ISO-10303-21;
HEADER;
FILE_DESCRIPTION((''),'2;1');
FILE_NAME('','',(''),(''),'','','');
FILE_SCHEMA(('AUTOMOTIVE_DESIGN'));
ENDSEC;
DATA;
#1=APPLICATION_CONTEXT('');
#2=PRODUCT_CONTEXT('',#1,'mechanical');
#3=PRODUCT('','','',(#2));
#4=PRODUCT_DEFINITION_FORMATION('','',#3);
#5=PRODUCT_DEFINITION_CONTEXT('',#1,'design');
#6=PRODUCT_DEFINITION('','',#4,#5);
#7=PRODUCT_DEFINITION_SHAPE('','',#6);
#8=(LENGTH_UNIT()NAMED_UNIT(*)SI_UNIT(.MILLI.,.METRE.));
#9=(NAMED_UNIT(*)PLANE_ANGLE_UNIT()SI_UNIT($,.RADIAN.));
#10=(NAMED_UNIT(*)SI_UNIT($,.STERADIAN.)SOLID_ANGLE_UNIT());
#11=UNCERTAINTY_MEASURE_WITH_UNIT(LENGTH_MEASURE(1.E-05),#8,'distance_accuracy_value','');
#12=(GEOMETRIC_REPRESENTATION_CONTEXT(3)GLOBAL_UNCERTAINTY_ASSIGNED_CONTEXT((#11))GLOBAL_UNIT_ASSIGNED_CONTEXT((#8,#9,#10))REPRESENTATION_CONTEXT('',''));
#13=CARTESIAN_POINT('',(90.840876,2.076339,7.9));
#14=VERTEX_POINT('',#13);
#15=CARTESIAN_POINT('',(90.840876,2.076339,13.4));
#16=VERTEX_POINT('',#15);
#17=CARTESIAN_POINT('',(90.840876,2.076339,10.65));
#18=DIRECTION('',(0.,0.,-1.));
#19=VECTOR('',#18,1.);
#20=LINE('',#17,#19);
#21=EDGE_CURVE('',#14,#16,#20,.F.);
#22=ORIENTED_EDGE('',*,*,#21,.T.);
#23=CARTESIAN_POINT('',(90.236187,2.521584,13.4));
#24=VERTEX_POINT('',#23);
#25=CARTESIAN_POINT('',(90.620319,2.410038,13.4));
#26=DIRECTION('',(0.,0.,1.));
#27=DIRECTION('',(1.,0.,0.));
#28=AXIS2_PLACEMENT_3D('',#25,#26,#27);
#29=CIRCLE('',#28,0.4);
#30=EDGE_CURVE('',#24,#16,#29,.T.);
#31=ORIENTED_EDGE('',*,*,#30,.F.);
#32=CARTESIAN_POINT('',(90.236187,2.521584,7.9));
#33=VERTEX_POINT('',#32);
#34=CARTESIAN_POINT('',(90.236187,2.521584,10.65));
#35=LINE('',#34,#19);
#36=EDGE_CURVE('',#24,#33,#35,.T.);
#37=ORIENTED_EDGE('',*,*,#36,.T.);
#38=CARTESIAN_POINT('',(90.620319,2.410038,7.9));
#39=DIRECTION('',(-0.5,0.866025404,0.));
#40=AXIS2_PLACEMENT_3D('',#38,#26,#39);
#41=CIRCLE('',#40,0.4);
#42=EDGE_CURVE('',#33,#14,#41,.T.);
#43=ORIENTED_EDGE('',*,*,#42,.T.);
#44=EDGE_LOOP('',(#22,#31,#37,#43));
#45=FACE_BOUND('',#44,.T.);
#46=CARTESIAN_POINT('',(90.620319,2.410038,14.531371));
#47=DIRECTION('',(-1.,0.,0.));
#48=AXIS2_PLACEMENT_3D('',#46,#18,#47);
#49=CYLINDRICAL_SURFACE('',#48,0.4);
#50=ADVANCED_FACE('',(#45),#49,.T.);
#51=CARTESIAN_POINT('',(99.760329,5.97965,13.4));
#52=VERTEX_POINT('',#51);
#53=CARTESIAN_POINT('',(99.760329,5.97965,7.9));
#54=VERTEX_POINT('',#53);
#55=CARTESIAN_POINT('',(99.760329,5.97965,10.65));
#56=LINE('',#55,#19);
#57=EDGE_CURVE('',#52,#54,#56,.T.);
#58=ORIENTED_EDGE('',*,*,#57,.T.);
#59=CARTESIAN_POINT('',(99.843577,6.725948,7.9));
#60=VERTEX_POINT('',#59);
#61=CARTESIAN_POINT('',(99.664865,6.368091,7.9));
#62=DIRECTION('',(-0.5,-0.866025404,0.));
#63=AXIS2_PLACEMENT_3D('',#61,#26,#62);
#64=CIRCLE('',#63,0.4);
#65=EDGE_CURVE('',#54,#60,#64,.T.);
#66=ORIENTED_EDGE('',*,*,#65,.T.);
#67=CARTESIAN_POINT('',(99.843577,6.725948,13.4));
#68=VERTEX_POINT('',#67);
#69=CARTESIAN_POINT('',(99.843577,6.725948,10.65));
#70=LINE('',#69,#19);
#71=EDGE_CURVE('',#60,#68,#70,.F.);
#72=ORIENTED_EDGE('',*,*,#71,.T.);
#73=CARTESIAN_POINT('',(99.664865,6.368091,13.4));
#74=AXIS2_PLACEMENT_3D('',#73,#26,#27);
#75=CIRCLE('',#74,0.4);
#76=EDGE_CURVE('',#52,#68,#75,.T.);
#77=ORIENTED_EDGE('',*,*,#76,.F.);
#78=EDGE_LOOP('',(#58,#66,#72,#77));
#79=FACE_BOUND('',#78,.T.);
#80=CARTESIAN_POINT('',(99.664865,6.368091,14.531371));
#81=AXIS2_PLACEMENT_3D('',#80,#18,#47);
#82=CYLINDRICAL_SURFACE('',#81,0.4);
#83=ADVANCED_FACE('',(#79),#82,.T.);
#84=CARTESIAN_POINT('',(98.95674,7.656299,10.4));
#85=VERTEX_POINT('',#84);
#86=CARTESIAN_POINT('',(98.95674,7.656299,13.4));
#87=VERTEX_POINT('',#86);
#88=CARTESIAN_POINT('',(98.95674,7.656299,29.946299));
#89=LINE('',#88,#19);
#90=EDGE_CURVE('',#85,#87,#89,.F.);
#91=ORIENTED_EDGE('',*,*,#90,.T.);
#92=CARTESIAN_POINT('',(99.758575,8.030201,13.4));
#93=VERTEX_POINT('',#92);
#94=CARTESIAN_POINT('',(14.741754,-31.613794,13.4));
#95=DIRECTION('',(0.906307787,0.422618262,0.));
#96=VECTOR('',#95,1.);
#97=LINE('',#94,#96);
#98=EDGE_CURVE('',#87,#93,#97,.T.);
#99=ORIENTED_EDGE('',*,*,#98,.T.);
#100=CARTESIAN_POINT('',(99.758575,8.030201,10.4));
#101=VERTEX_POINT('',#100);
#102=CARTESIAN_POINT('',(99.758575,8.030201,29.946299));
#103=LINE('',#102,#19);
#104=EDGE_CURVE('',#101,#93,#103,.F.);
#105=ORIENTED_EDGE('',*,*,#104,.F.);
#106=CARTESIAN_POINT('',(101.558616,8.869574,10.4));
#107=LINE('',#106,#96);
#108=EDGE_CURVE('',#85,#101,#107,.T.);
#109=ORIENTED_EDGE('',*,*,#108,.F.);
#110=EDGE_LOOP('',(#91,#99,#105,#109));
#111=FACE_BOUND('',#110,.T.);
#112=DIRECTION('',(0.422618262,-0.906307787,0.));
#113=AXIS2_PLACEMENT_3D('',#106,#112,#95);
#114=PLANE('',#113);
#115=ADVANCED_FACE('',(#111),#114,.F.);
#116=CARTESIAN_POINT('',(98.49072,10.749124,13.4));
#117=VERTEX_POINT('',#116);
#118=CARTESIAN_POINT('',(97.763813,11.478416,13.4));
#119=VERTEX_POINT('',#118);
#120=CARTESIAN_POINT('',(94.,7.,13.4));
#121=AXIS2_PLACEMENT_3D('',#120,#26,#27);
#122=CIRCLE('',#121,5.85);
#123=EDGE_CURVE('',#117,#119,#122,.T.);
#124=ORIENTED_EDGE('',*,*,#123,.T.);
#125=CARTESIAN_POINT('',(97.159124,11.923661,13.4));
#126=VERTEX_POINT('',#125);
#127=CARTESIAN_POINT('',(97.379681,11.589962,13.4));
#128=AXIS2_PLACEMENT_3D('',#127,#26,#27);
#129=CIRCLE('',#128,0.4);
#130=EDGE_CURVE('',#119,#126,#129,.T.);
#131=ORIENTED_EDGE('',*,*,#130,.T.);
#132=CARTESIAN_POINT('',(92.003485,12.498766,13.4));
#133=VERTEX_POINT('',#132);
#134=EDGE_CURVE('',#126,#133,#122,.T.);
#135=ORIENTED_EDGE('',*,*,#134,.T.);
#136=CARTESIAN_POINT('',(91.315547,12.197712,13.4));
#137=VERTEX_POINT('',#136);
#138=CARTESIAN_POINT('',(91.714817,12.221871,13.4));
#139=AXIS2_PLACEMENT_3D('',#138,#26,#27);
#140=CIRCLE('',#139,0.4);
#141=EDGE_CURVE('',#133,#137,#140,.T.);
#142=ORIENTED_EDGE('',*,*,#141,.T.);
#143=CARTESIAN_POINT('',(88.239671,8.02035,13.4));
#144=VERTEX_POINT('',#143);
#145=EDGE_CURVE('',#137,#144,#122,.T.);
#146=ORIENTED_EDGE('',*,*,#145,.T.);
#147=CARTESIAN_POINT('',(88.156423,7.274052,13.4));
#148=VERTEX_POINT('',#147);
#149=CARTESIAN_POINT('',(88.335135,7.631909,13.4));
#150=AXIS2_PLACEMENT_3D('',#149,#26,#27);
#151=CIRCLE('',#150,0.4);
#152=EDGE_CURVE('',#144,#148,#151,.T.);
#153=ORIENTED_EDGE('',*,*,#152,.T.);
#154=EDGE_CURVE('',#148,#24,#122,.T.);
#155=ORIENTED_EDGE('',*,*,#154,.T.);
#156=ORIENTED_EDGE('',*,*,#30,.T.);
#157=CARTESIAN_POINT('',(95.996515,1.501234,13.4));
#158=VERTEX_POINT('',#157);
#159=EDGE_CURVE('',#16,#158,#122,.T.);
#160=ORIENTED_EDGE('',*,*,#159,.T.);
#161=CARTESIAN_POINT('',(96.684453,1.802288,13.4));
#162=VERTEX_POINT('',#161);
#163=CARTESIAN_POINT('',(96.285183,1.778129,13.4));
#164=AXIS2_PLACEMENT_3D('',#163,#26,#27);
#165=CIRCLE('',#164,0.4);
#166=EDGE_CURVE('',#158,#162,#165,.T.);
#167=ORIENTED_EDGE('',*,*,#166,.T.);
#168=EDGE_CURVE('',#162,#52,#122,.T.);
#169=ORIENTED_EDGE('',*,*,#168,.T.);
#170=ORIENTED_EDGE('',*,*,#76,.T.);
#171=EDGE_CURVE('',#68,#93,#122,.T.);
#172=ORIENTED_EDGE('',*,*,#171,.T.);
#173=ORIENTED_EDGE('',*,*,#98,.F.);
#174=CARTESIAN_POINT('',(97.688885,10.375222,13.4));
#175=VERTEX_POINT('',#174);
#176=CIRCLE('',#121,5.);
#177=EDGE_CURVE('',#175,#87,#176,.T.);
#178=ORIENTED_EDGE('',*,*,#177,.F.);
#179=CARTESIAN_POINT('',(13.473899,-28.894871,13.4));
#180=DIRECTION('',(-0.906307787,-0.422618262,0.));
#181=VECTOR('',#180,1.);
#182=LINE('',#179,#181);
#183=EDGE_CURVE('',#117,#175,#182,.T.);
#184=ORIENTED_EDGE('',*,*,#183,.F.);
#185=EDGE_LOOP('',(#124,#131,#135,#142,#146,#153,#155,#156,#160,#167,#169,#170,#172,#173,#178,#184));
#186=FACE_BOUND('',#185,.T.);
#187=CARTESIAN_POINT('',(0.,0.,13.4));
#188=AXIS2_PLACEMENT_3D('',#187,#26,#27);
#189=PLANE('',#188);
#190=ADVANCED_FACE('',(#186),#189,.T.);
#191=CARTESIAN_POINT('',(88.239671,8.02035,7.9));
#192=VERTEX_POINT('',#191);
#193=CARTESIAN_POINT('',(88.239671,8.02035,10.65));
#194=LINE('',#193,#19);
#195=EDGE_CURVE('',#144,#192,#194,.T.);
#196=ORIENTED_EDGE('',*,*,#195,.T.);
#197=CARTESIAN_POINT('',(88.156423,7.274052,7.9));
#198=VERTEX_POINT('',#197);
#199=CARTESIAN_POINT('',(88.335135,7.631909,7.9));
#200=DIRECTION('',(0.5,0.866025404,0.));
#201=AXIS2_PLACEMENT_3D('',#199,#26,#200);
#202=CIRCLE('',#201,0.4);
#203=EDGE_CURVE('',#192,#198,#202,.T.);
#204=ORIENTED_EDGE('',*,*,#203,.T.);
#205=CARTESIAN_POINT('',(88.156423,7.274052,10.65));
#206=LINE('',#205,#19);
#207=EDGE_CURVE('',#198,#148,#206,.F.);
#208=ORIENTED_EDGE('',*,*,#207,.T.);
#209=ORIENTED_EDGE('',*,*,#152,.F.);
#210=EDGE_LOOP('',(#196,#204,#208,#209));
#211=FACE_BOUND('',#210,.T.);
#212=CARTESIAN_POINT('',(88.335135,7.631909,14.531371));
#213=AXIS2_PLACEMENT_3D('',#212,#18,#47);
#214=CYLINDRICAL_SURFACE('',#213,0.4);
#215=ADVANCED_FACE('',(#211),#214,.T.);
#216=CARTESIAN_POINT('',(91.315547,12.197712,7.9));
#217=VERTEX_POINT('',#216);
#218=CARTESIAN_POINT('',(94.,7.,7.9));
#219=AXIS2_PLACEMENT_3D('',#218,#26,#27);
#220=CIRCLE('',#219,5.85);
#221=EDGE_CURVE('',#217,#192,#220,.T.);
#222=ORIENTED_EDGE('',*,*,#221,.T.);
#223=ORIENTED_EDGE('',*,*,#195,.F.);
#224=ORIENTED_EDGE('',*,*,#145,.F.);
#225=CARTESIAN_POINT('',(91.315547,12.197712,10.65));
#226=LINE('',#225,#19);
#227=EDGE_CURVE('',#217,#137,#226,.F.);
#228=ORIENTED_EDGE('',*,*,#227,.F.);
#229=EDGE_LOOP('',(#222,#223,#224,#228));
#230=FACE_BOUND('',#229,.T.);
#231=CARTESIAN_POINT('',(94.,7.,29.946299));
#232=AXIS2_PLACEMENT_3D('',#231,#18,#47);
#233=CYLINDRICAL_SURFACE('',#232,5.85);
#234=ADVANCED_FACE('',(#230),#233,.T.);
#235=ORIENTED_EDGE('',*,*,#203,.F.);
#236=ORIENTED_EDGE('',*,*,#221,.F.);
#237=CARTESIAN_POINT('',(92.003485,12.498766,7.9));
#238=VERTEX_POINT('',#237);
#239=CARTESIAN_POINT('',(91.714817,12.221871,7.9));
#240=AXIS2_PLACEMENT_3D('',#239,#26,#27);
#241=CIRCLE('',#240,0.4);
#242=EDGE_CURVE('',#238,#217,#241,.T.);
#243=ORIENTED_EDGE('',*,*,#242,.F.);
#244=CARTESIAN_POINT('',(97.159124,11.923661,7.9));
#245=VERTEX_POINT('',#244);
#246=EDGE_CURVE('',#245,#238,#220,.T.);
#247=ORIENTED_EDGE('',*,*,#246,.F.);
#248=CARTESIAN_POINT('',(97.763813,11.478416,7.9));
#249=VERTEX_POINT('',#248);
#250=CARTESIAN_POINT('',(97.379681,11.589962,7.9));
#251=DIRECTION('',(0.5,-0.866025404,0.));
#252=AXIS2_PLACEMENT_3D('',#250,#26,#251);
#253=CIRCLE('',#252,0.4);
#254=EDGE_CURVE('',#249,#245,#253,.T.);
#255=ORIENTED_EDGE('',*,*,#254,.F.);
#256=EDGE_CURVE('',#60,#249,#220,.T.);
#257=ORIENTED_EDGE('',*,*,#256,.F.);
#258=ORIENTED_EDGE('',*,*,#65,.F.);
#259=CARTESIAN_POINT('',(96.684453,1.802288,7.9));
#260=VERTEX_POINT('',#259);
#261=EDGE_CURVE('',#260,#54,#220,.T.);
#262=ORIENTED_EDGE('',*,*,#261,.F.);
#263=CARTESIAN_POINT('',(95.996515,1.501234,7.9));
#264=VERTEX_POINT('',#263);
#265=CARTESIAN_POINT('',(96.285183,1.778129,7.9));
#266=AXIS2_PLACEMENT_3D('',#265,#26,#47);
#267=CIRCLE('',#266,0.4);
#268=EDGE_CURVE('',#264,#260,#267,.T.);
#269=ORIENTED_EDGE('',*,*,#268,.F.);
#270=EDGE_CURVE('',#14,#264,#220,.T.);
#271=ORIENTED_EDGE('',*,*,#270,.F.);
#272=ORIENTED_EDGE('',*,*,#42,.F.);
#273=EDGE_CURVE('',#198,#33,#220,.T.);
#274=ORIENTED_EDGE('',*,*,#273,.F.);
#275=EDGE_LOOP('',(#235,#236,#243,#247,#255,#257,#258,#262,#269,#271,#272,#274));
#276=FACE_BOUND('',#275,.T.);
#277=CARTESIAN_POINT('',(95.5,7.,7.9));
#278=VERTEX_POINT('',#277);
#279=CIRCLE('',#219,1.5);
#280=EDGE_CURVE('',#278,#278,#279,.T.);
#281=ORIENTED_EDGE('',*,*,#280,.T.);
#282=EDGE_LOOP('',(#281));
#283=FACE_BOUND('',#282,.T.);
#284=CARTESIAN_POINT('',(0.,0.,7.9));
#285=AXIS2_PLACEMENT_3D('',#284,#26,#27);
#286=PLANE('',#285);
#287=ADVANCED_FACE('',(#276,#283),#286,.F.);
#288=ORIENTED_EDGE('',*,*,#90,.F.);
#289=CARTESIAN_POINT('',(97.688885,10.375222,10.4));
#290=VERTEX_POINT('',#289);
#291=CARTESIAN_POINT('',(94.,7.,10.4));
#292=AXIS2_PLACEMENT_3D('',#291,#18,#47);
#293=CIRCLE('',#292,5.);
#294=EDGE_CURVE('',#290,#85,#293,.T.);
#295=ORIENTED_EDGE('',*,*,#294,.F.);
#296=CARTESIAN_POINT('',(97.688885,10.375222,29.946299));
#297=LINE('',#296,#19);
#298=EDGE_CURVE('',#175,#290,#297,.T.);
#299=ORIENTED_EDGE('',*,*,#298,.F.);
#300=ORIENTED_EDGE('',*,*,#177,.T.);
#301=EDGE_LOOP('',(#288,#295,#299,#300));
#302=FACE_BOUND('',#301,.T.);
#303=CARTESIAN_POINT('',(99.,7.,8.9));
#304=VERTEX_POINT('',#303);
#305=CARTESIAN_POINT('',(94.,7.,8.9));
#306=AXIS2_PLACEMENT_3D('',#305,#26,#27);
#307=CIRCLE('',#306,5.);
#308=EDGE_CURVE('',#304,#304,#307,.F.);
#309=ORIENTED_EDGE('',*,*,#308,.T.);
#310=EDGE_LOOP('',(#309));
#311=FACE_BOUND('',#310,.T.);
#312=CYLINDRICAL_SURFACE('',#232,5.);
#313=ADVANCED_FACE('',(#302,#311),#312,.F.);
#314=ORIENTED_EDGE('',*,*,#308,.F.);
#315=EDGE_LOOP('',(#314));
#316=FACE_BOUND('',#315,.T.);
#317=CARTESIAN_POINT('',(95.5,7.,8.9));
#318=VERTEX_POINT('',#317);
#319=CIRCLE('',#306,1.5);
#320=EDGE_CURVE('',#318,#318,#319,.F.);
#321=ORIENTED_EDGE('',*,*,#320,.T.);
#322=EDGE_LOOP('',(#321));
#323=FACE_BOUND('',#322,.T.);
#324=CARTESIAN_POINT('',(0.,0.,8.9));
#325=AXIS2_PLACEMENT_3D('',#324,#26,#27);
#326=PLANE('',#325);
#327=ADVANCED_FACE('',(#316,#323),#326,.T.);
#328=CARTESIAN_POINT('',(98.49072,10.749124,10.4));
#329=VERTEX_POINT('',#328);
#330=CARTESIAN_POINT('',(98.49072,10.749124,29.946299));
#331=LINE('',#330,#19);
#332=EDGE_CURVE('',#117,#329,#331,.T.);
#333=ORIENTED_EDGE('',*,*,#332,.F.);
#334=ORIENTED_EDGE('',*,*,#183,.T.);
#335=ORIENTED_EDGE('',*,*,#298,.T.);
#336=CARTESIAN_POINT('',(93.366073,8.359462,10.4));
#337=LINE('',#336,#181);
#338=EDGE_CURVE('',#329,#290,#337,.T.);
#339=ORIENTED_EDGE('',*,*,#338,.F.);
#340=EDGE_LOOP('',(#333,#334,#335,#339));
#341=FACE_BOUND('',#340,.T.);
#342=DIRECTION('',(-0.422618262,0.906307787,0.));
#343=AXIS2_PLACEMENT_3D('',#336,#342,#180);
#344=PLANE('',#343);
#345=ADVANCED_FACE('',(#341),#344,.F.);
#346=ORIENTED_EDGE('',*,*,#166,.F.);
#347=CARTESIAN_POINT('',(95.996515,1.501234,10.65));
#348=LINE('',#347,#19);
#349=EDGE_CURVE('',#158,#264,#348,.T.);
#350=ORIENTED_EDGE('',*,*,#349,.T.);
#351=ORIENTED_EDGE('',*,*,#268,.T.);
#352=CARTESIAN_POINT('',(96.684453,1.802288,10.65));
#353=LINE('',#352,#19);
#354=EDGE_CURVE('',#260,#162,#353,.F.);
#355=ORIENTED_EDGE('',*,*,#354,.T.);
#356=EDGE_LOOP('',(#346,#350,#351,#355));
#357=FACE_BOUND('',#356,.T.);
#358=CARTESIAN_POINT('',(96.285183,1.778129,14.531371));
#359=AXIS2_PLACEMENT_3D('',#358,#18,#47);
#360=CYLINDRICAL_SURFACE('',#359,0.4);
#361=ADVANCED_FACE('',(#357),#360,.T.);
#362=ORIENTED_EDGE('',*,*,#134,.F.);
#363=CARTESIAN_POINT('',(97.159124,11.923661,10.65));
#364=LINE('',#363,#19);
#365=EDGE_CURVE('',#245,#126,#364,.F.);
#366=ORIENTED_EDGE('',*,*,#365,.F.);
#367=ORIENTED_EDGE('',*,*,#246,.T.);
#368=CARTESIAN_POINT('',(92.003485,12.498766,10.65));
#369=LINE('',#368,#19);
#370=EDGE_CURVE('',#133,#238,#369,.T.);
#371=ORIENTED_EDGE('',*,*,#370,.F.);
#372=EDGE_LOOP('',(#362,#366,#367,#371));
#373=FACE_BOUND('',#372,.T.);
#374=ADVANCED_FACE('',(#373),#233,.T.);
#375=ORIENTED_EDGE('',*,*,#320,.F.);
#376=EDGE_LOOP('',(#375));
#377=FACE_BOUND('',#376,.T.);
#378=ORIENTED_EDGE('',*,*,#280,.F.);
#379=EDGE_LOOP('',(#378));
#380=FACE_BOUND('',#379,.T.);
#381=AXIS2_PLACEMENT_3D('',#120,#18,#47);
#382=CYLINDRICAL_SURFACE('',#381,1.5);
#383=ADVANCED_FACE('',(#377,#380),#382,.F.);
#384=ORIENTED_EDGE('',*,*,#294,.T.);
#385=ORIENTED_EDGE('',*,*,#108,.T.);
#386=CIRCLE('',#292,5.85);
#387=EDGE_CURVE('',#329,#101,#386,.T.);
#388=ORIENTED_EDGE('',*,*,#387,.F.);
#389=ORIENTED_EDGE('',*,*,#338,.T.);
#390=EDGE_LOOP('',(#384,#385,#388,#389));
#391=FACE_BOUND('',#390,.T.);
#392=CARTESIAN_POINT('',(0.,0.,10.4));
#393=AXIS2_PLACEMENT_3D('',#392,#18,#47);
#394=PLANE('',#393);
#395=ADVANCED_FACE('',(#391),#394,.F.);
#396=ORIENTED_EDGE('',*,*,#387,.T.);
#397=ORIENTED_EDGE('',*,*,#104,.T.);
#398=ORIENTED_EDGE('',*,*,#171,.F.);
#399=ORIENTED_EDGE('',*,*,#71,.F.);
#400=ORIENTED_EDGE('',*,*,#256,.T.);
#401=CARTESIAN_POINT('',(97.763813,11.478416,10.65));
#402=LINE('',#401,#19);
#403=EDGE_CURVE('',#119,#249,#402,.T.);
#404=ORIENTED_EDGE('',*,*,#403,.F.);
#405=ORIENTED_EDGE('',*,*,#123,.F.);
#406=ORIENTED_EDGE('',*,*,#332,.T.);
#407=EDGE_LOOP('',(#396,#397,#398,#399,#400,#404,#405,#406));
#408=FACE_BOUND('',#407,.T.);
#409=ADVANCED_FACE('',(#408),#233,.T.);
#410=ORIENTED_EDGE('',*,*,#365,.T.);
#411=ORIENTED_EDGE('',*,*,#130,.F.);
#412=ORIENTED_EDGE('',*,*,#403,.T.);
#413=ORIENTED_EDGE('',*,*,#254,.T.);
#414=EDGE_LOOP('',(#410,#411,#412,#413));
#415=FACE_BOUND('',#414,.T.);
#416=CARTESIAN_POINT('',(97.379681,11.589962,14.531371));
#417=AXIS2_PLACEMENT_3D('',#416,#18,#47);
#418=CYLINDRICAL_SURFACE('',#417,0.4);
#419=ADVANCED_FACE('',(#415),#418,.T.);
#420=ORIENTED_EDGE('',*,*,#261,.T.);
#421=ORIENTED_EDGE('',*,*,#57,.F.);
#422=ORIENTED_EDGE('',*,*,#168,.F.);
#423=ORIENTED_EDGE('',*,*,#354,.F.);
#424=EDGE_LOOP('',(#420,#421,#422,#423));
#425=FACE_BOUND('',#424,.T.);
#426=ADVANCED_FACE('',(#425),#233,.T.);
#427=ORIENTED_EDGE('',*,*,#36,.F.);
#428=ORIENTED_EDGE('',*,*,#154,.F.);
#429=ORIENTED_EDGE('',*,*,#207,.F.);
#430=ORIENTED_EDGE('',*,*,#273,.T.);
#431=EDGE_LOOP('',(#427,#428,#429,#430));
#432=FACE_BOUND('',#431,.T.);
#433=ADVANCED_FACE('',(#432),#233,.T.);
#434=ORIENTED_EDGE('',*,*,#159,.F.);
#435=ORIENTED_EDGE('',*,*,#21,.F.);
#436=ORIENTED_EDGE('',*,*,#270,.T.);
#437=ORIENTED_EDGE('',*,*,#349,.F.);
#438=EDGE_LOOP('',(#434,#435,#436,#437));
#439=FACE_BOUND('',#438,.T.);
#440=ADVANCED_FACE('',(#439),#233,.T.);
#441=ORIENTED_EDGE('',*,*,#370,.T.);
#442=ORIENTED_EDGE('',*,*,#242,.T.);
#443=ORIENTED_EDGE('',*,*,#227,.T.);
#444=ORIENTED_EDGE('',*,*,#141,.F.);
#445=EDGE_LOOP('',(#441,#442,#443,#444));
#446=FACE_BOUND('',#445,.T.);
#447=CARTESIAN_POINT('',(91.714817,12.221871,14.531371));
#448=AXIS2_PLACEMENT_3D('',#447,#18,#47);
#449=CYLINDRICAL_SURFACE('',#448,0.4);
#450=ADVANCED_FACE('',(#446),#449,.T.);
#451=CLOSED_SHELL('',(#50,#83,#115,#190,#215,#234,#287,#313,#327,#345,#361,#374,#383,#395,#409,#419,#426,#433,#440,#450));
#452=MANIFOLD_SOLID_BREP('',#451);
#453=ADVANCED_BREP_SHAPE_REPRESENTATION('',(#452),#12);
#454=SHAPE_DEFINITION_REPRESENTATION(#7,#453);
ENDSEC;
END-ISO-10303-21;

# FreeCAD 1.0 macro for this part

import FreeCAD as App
import Part
import Sketcher

V = App.Vector
Q = App.Units.Quantity

doc = App.newDocument("Part")
body = doc.addObject("PartDesign::Body", "Body")

# Sketch on XY plane
sketch1 = doc.addObject("Sketcher::SketchObject", "Sketch")
body.addObject(sketch1)
sketch1.AttachmentSupport = (doc.XY_Plane, [""])
sketch1.MapMode = "FlatFace"
sketch1.AttachmentOffset = App.Placement(V(0, 0, 7.9), App.Rotation())
sketch1.addGeometry(Part.Circle(V(94, 7, 0), V(0, 0, 1), 5), False)
sketch1.addConstraint([
    Sketcher.Constraint("Diameter", 0, 10.0),
    Sketcher.Constraint("DistanceX", -1, 1, 0, 3, 94.0),
    Sketcher.Constraint("DistanceY", -1, 1, 0, 3, 7.0),
])
pad1 = doc.addObject("PartDesign::Pad", "Pad")
body.addObject(pad1)
pad1.Profile = sketch1
pad1.Length = 1

# Sketch on XY plane
sketch2 = doc.addObject("Sketcher::SketchObject", "Sketch001")
body.addObject(sketch2)
sketch2.AttachmentSupport = (doc.XY_Plane, [""])
sketch2.MapMode = "FlatFace"
sketch2.AttachmentOffset = App.Placement(V(0, 0, 7.9), App.Rotation())
sketch2.addGeometry([
    Part.Circle(V(94, 7, 0), V(0, 0, 1), 6),
    Part.Circle(V(94, 7, 0), V(0, 0, 1), 5),
], False)
sketch2.addConstraint([
    Sketcher.Constraint("Coincident", 1, 3, 0, 3),
    Sketcher.Constraint("Diameter", 1, 10.0),
    Sketcher.Constraint("Diameter", 0, 11.7),
    Sketcher.Constraint("DistanceX", -1, 1, 0, 3, 94.0),
    Sketcher.Constraint("DistanceY", -1, 1, 0, 3, 7.0),
])
pad2 = doc.addObject("PartDesign::Pad", "Pad001")
body.addObject(pad2)
pad2.Profile = sketch2
pad2.Length = 5.5

# Sketch on XY plane
sketch3 = doc.addObject("Sketcher::SketchObject", "Sketch002")
body.addObject(sketch3)
sketch3.AttachmentSupport = (doc.XY_Plane, [""])
sketch3.MapMode = "FlatFace"
sketch3.AttachmentOffset = App.Placement(V(0, 0, 7.9), App.Rotation())
sketch3.addGeometry(Part.Circle(V(91.71, 12.22, 0), V(0, 0, 1), 0.4), False)
sketch3.addConstraint([
    Sketcher.Constraint("Diameter", 0, 0.8),
    Sketcher.Constraint("DistanceY", -1, 1, 0, 3, 12.221871),
    Sketcher.Constraint("DistanceX", -1, 1, 0, 3, 91.714817),
])
pad3 = doc.addObject("PartDesign::Pad", "Pad002")
body.addObject(pad3)
pad3.Profile = sketch3
pad3.Length = 5.5
doc.recompute()

datumline = doc.addObject("PartDesign::Line", "DatumLine")
body.addObject(datumline)
datumline.Placement = App.Placement(V(94, 7, 0), App.Rotation(V(0, 0, 1), V(0, 0, 1)))
polarpattern = doc.addObject("PartDesign::PolarPattern", "PolarPattern")
body.addObject(polarpattern)
polarpattern.Originals = [pad3]
polarpattern.Axis = (datumline, [""])
polarpattern.Angle = 360
polarpattern.Occurrences = 6
body.Tip = polarpattern

# Sketch on XY plane
sketch4 = doc.addObject("Sketcher::SketchObject", "Sketch003")
body.addObject(sketch4)
sketch4.AttachmentSupport = (doc.XY_Plane, [""])
sketch4.MapMode = "FlatFace"
sketch4.AttachmentOffset = App.Placement(V(0, 0, 13.4), App.Rotation())
sketch4.addGeometry([
    Part.LineSegment(V(100.3, 11.6, 0), V(93.4, 8.4, 0)),
    Part.LineSegment(V(93.4, 8.4, 0), V(94.6, 5.6, 0)),
    Part.LineSegment(V(94.6, 5.6, 0), V(101.6, 8.9, 0)),
    Part.LineSegment(V(101.6, 8.9, 0), V(100.3, 11.6, 0)),
], False)
sketch4.addConstraint([
    Sketcher.Constraint("Coincident", 0, 2, 1, 1),
    Sketcher.Constraint("Coincident", 1, 2, 2, 1),
    Sketcher.Constraint("Coincident", 2, 2, 3, 1),
    Sketcher.Constraint("Coincident", 3, 2, 0, 1),
    Sketcher.Constraint("Perpendicular", 0, 1),
    Sketcher.Constraint("Perpendicular", 1, 2),
    Sketcher.Constraint("Perpendicular", 2, 3),
    Sketcher.Constraint("Angle", 0, Q("-155 deg")),
    Sketcher.Constraint("Distance", 1, 3.0),
    Sketcher.Constraint("Distance", 0, 7.640549),
    Sketcher.Constraint("DistanceY", -1, 1, 0, 2, 8.359462),
    Sketcher.Constraint("DistanceX", -1, 1, 3, 2, 100.290761),
])
pocket1 = doc.addObject("PartDesign::Pocket", "Pocket")
body.addObject(pocket1)
pocket1.Profile = sketch4
pocket1.Length = 3

# Sketch on XY plane
sketch5 = doc.addObject("Sketcher::SketchObject", "Sketch004")
body.addObject(sketch5)
sketch5.AttachmentSupport = (doc.XY_Plane, [""])
sketch5.MapMode = "FlatFace"
sketch5.AttachmentOffset = App.Placement(V(0, 0, 7.9), App.Rotation())
sketch5.addGeometry(Part.Circle(V(94, 7, 0), V(0, 0, 1), 1.5), False)
sketch5.addConstraint([
    Sketcher.Constraint("Diameter", 0, 3.0),
    Sketcher.Constraint("DistanceX", -1, 1, 0, 3, 94.0),
    Sketcher.Constraint("DistanceY", -1, 1, 0, 3, 7.0),
])
pocket2 = doc.addObject("PartDesign::Pocket", "Pocket001")
body.addObject(pocket2)
pocket2.Profile = sketch5
pocket2.Type = "ThroughAll"
pocket2.Reversed = True

doc.recompute()
